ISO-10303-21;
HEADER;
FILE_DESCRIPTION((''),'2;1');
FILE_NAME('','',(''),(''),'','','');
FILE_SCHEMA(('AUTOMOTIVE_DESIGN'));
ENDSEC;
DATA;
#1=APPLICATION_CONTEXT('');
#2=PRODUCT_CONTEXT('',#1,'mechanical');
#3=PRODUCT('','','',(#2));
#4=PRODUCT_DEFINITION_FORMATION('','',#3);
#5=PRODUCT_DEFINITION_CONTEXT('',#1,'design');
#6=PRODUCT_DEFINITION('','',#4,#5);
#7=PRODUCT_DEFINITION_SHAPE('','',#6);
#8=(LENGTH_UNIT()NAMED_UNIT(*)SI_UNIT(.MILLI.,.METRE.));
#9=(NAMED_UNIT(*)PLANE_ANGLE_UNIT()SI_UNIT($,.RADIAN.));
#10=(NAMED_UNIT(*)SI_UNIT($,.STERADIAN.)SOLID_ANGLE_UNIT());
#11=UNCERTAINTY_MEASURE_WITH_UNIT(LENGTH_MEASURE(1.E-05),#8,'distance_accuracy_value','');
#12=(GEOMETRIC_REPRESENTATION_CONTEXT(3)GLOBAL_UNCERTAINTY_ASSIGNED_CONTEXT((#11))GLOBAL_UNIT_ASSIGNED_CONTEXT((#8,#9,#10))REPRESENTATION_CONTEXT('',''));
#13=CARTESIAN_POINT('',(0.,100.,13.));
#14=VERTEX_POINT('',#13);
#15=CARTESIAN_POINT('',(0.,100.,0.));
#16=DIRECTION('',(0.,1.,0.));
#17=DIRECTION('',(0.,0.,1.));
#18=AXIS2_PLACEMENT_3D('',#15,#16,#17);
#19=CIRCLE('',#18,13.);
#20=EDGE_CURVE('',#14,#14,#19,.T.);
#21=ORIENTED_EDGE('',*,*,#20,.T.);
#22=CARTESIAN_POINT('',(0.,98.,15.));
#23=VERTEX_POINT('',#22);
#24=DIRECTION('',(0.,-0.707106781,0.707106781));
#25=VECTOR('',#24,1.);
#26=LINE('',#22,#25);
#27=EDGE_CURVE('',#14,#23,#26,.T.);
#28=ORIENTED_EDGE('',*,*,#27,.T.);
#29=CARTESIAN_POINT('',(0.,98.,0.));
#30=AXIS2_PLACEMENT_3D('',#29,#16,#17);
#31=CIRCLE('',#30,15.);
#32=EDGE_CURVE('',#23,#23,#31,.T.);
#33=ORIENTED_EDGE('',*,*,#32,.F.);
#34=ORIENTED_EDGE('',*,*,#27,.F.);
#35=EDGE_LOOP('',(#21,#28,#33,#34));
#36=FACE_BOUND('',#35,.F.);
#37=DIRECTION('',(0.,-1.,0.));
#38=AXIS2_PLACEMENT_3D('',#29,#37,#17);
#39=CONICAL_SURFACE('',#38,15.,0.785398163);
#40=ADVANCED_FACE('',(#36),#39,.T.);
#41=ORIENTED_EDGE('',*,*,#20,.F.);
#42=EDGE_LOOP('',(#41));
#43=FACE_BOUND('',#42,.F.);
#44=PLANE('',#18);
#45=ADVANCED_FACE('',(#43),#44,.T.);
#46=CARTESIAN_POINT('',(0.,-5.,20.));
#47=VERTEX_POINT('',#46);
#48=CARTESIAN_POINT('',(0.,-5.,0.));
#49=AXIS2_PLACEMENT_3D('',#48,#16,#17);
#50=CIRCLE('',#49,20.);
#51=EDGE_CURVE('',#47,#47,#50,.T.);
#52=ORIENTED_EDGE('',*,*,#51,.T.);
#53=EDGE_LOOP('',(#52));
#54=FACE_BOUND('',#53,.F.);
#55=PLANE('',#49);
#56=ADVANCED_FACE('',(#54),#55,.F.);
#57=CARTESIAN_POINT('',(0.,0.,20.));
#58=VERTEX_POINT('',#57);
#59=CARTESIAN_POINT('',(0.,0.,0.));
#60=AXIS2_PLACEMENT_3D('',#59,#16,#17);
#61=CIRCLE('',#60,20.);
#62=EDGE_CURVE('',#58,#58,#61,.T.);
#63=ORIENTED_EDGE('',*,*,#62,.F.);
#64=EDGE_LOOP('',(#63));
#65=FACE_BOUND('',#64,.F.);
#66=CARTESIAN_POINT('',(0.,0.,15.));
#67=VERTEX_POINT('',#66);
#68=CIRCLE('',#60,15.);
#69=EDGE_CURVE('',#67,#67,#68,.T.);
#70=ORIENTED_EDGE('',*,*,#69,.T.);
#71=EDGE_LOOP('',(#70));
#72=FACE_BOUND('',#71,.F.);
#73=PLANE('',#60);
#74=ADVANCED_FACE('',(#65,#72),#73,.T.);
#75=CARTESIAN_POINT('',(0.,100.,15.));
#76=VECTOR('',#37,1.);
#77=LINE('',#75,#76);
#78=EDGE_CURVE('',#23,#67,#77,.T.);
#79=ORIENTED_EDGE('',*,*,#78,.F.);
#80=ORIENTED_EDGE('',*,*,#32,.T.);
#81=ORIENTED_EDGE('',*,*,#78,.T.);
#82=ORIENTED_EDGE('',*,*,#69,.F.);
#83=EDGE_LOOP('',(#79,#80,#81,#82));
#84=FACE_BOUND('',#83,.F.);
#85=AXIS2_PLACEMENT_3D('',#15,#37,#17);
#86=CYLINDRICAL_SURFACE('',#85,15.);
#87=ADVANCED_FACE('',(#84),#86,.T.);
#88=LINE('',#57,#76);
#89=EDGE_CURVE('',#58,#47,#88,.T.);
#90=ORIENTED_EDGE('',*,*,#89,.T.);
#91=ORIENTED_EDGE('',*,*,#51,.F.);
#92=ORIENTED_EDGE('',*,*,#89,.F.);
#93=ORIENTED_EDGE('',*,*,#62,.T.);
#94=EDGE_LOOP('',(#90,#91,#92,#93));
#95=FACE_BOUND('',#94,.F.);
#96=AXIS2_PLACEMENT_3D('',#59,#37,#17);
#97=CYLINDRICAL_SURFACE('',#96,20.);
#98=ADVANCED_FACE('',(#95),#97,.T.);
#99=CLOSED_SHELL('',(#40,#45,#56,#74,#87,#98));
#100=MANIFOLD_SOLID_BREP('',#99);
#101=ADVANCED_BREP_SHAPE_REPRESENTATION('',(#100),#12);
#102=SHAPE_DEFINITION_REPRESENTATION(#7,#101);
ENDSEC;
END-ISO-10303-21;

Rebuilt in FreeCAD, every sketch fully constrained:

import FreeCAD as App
import Part
import Sketcher
Q = App.Units.Quantity


def edges_at(feature, points):
    """Names of the edges that pass closest to the given points."""
    edges = feature.Shape.Edges
    near = lambda p: min(range(len(edges)), key=lambda i: edges[i].distToShape(Part.Vertex(*p))[0])
    return sorted({f"Edge{near(p) + 1}" for p in points})


def add_polygon(sketch, points):
    """Adds a closed chain of lines whose ends are joined by coincident constraints."""
    first, n = sketch.GeometryCount, len(points)
    for a, b in zip(points, points[1:] + points[:1]):
        sketch.addGeometry(Part.LineSegment(App.Vector(*a, 0), App.Vector(*b, 0)), False)
    for i in range(n):
        sketch.addConstraint(Sketcher.Constraint("Coincident", first + i, 2, first + (i + 1) % n, 1))

doc = App.newDocument("Part")
body = doc.addObject("PartDesign::Body", "Body")

sketch1 = body.newObject("Sketcher::SketchObject", "Sketch")
sketch1.AttachmentSupport = (doc.getObject("YZ_Plane"), [""])
sketch1.MapMode = "FlatFace"
add_polygon(sketch1, [(-5, 20), (-5, 0), (100, 0), (100, 15), (0, 15), (0, 20)])
sketch1.addConstraint(Sketcher.Constraint("Vertical", 0))
sketch1.addConstraint(Sketcher.Constraint("Horizontal", 1))
sketch1.addConstraint(Sketcher.Constraint("Vertical", 2))
sketch1.addConstraint(Sketcher.Constraint("Horizontal", 3))
sketch1.addConstraint(Sketcher.Constraint("Vertical", 4))
sketch1.addConstraint(Sketcher.Constraint("Horizontal", 5))
sketch1.addConstraint(Sketcher.Constraint("PointOnObject", 0, 2, -1))
sketch1.addConstraint(Sketcher.Constraint("PointOnObject", 3, 2, -2))
sketch1.addConstraint(Sketcher.Constraint("Equal", 5, 4))
sketch1.addConstraint(Sketcher.Constraint("DistanceX", 1, 1, 1, 2, Q("105 mm")))
sketch1.addConstraint(Sketcher.Constraint("DistanceX", 3, 2, 3, 1, Q("100 mm")))
sketch1.addConstraint(Sketcher.Constraint("DistanceY", 0, 2, 0, 1, Q("20 mm")))
revolution = body.newObject("PartDesign::Revolution", "Revolution")
revolution.Profile = sketch1
revolution.ReferenceAxis = (sketch1, ["H_Axis"])
revolution.Angle = 360
doc.recompute()

chamfer = body.newObject("PartDesign::Chamfer", "Chamfer")
chamfer.Base = (revolution, edges_at(revolution, [(0, 100, -15)]))
chamfer.Size = 2

doc.recompute()
